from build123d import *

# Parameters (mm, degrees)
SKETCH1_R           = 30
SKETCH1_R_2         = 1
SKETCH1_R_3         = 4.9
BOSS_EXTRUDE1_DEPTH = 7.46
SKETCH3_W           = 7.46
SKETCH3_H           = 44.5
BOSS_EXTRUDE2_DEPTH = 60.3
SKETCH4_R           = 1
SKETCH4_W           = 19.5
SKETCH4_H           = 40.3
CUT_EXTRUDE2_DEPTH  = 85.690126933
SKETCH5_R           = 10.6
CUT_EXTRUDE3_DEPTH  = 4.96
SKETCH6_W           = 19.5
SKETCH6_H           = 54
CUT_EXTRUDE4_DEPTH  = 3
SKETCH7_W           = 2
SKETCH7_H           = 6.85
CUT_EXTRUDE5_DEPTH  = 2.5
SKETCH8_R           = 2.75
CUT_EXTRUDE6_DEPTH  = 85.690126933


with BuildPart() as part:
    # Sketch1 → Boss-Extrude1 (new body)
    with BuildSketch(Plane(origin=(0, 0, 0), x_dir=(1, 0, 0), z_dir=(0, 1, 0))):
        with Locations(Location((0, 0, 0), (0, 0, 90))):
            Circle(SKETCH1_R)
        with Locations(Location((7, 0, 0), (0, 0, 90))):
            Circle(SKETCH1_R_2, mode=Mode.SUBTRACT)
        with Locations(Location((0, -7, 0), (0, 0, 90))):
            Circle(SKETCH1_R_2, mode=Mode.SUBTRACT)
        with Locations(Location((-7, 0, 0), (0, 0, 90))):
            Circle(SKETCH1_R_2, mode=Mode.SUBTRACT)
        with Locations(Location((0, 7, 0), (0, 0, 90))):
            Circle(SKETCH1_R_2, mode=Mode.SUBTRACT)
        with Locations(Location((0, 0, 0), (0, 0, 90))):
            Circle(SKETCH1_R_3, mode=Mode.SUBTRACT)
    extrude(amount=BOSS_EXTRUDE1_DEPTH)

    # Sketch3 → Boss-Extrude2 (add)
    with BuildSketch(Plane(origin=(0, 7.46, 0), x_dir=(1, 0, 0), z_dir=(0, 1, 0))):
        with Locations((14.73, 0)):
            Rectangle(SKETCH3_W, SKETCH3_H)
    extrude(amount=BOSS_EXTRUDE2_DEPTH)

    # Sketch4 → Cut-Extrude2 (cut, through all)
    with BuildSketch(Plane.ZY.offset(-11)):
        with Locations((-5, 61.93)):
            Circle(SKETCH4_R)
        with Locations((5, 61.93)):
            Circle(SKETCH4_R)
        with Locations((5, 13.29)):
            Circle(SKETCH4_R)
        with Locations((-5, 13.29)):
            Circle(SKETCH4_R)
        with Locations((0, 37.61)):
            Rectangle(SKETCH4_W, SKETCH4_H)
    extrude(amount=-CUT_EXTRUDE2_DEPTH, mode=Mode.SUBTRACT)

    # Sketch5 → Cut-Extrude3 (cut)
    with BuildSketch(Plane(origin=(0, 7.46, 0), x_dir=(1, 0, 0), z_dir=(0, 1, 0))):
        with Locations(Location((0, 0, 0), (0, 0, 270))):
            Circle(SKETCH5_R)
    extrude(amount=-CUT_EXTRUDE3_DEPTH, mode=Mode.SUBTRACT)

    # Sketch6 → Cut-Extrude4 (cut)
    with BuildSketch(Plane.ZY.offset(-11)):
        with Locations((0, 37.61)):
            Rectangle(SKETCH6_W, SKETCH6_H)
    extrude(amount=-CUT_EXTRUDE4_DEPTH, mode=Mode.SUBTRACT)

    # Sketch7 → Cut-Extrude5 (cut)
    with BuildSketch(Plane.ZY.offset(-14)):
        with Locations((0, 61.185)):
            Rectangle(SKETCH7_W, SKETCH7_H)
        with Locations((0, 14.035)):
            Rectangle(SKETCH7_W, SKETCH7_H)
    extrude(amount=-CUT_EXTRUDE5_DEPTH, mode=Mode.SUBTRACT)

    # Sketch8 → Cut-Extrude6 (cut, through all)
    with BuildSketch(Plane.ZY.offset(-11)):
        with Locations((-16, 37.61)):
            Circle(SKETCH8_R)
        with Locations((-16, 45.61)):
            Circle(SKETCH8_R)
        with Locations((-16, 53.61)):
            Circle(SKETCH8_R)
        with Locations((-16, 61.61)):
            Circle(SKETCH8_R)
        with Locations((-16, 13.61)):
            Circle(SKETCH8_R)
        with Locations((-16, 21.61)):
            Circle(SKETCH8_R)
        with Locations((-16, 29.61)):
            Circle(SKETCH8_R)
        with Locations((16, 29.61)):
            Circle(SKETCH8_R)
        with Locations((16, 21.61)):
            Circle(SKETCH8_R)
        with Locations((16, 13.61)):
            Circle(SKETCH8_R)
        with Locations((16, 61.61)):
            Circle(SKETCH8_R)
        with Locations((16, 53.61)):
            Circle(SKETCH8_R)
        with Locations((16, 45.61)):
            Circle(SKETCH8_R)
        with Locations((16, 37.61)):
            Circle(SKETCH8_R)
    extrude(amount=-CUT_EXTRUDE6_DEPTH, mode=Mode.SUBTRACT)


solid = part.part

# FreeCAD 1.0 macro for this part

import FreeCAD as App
import Part
import Sketcher
Q = App.Units.Quantity

doc = App.newDocument("Part")
body = doc.addObject("PartDesign::Body", "Body")

# Sketch on XZ plane
sketch1 = doc.addObject("Sketcher::SketchObject", "Sketch")
body.addObject(sketch1)
sketch1.AttachmentSupport = (doc.XZ_Plane, [""])
sketch1.MapMode = "FlatFace"
sketch1.addGeometry(Part.Circle(App.Vector(0, 0, 0), App.Vector(0, 0, 1), 30), False)
sketch1.addGeometry(Part.Circle(App.Vector(0, 7, 0), App.Vector(0, 0, 1), 1), False)
sketch1.addGeometry(Part.Circle(App.Vector(7, 0, 0), App.Vector(0, 0, 1), 1), False)
sketch1.addGeometry(Part.Circle(App.Vector(-7, 0, 0), App.Vector(0, 0, 1), 1), False)
sketch1.addGeometry(Part.Circle(App.Vector(0, 0, 0), App.Vector(0, 0, 1), 4.9), False)
sketch1.addGeometry(Part.Circle(App.Vector(0, -7, 0), App.Vector(0, 0, 1), 1), False)
sketch1.addConstraint(Sketcher.Constraint("Coincident", 0, 3, -1, 1))
sketch1.addConstraint(Sketcher.Constraint("Coincident", 4, 3, -1, 1))
sketch1.addConstraint(Sketcher.Constraint("Equal", 1, 2))
sketch1.addConstraint(Sketcher.Constraint("Equal", 2, 3))
sketch1.addConstraint(Sketcher.Constraint("Equal", 3, 5))
sketch1.addConstraint(Sketcher.Constraint("Symmetric", 2, 3, 3, 3, -1, 1))
sketch1.addConstraint(Sketcher.Constraint("Symmetric", 1, 3, 5, 3, -1, 1))
sketch1.addConstraint(Sketcher.Constraint("PointOnObject", 1, 3, -2))
sketch1.addConstraint(Sketcher.Constraint("PointOnObject", 2, 3, -1))
sketch1.addConstraint(Sketcher.Constraint("Diameter", 0, Q("60 mm")))
sketch1.addConstraint(Sketcher.Constraint("Diameter", 1, Q("2 mm")))
sketch1.addConstraint(Sketcher.Constraint("Diameter", 4, Q("9.8 mm")))
sketch1.addConstraint(Sketcher.Constraint("DistanceY", -1, 1, 1, 3, Q("7 mm")))
sketch1.addConstraint(Sketcher.Constraint("DistanceX", -1, 1, 2, 3, Q("7 mm")))
pad1 = doc.addObject("PartDesign::Pad", "Pad")
body.addObject(pad1)
pad1.Profile = sketch1
pad1.Length = 7.46
pad1.Reversed = True

# Sketch on XZ plane
sketch2 = doc.addObject("Sketcher::SketchObject", "Sketch001")
body.addObject(sketch2)
sketch2.AttachmentSupport = (doc.XZ_Plane, [""])
sketch2.MapMode = "FlatFace"
sketch2.AttachmentOffset = App.Placement(App.Vector(0, 0, -7.46), App.Rotation())
sketch2.addGeometry(Part.LineSegment(App.Vector(11, -22, 0), App.Vector(11, 22, 0)), False)
sketch2.addGeometry(Part.LineSegment(App.Vector(11, 22, 0), App.Vector(18, 22, 0)), False)
sketch2.addGeometry(Part.LineSegment(App.Vector(18, 22, 0), App.Vector(18, -22, 0)), False)
sketch2.addGeometry(Part.LineSegment(App.Vector(18, -22, 0), App.Vector(11, -22, 0)), False)
sketch2.addConstraint(Sketcher.Constraint("Coincident", 0, 2, 1, 1))
sketch2.addConstraint(Sketcher.Constraint("Coincident", 1, 2, 2, 1))
sketch2.addConstraint(Sketcher.Constraint("Coincident", 2, 2, 3, 1))
sketch2.addConstraint(Sketcher.Constraint("Coincident", 3, 2, 0, 1))
sketch2.addConstraint(Sketcher.Constraint("Vertical", 0))
sketch2.addConstraint(Sketcher.Constraint("Horizontal", 1))
sketch2.addConstraint(Sketcher.Constraint("Vertical", 2))
sketch2.addConstraint(Sketcher.Constraint("Horizontal", 3))
sketch2.addConstraint(Sketcher.Constraint("DistanceY", 0, 1, 0, 2, Q("44.5 mm")))
sketch2.addConstraint(Sketcher.Constraint("DistanceX", -1, 1, 0, 2, Q("11 mm")))
sketch2.addConstraint(Sketcher.Constraint("DistanceX", 1, 1, 1, 2, Q("7.46 mm")))
sketch2.addConstraint(Sketcher.Constraint("DistanceY", -1, 1, 0, 2, Q("22.25 mm")))
pad2 = doc.addObject("PartDesign::Pad", "Pad001")
body.addObject(pad2)
pad2.Profile = sketch2
pad2.Length = 60.3
pad2.Reversed = True

# Sketch on YZ plane
sketch3 = doc.addObject("Sketcher::SketchObject", "Sketch002")
body.addObject(sketch3)
sketch3.AttachmentSupport = (doc.YZ_Plane, [""])
sketch3.MapMode = "FlatFace"
sketch3.AttachmentOffset = App.Placement(App.Vector(0, 0, 11), App.Rotation())
sketch3.addGeometry(Part.Circle(App.Vector(61.9, -5, 0), App.Vector(0, 0, 1), 1), False)
sketch3.addGeometry(Part.Circle(App.Vector(61.9, 5, 0), App.Vector(0, 0, 1), 1), False)
sketch3.addGeometry(Part.Circle(App.Vector(13.3, 5, 0), App.Vector(0, 0, 1), 1), False)
sketch3.addGeometry(Part.Circle(App.Vector(13.3, -5, 0), App.Vector(0, 0, 1), 1), False)
sketch3.addGeometry(Part.LineSegment(App.Vector(57.8, -9.8, 0), App.Vector(17.5, -9.8, 0)), False)
sketch3.addGeometry(Part.LineSegment(App.Vector(17.5, -9.8, 0), App.Vector(17.5, 9.8, 0)), False)
sketch3.addGeometry(Part.LineSegment(App.Vector(17.5, 9.8, 0), App.Vector(57.8, 9.8, 0)), False)
sketch3.addGeometry(Part.LineSegment(App.Vector(57.8, 9.8, 0), App.Vector(57.8, -9.8, 0)), False)
sketch3.addConstraint(Sketcher.Constraint("Coincident", 4, 2, 5, 1))
sketch3.addConstraint(Sketcher.Constraint("Coincident", 5, 2, 6, 1))
sketch3.addConstraint(Sketcher.Constraint("Coincident", 6, 2, 7, 1))
sketch3.addConstraint(Sketcher.Constraint("Coincident", 7, 2, 4, 1))
sketch3.addConstraint(Sketcher.Constraint("Horizontal", 4))
sketch3.addConstraint(Sketcher.Constraint("Vertical", 5))
sketch3.addConstraint(Sketcher.Constraint("Horizontal", 6))
sketch3.addConstraint(Sketcher.Constraint("Vertical", 7))
sketch3.addConstraint(Sketcher.Constraint("Equal", 0, 1))
sketch3.addConstraint(Sketcher.Constraint("Equal", 1, 2))
sketch3.addConstraint(Sketcher.Constraint("Equal", 2, 3))
sketch3.addConstraint(Sketcher.Constraint("Symmetric", 0, 3, 1, 3, -1))
sketch3.addConstraint(Sketcher.Constraint("Symmetric", 2, 3, 3, 3, -1))
sketch3.addConstraint(Sketcher.Constraint("Horizontal", 1, 3, 2, 3))
sketch3.addConstraint(Sketcher.Constraint("Diameter", 0, Q("2 mm")))
sketch3.addConstraint(Sketcher.Constraint("DistanceX", 4, 2, 4, 1, Q("40.3 mm")))
sketch3.addConstraint(Sketcher.Constraint("DistanceY", 5, 1, 5, 2, Q("19.5 mm")))
sketch3.addConstraint(Sketcher.Constraint("DistanceY", 0, 3, -1, 1, Q("5 mm")))
sketch3.addConstraint(Sketcher.Constraint("DistanceX", -1, 1, 0, 3, Q("61.93 mm")))
sketch3.addConstraint(Sketcher.Constraint("DistanceX", -1, 1, 2, 3, Q("13.29 mm")))
sketch3.addConstraint(Sketcher.Constraint("DistanceX", -1, 1, 4, 2, Q("17.46 mm")))
sketch3.addConstraint(Sketcher.Constraint("DistanceY", 4, 2, -1, 1, Q("9.75 mm")))
pocket1 = doc.addObject("PartDesign::Pocket", "Pocket")
body.addObject(pocket1)
pocket1.Profile = sketch3
pocket1.Type = "ThroughAll"
pocket1.Reversed = True

# Sketch on XZ plane
sketch4 = doc.addObject("Sketcher::SketchObject", "Sketch003")
body.addObject(sketch4)
sketch4.AttachmentSupport = (doc.XZ_Plane, [""])
sketch4.MapMode = "FlatFace"
sketch4.AttachmentOffset = App.Placement(App.Vector(0, 0, -7.46), App.Rotation())
sketch4.addGeometry(Part.Circle(App.Vector(0, 0, 0), App.Vector(0, 0, 1), 11), False)
sketch4.addConstraint(Sketcher.Constraint("Coincident", 0, 3, -1, 1))
sketch4.addConstraint(Sketcher.Constraint("Diameter", 0, Q("21.2 mm")))
pocket2 = doc.addObject("PartDesign::Pocket", "Pocket001")
body.addObject(pocket2)
pocket2.Profile = sketch4
pocket2.Length = 4.96
pocket2.Reversed = True

# Sketch on YZ plane
sketch5 = doc.addObject("Sketcher::SketchObject", "Sketch004")
body.addObject(sketch5)
sketch5.AttachmentSupport = (doc.YZ_Plane, [""])
sketch5.MapMode = "FlatFace"
sketch5.AttachmentOffset = App.Placement(App.Vector(0, 0, 11), App.Rotation())
sketch5.addGeometry(Part.LineSegment(App.Vector(65, -10, 0), App.Vector(11, -10, 0)), False)
sketch5.addGeometry(Part.LineSegment(App.Vector(11, -10, 0), App.Vector(11, 10, 0)), False)
sketch5.addGeometry(Part.LineSegment(App.Vector(11, 10, 0), App.Vector(65, 10, 0)), False)
sketch5.addGeometry(Part.LineSegment(App.Vector(65, 10, 0), App.Vector(65, -10, 0)), False)
sketch5.addConstraint(Sketcher.Constraint("Coincident", 0, 2, 1, 1))
sketch5.addConstraint(Sketcher.Constraint("Coincident", 1, 2, 2, 1))
sketch5.addConstraint(Sketcher.Constraint("Coincident", 2, 2, 3, 1))
sketch5.addConstraint(Sketcher.Constraint("Coincident", 3, 2, 0, 1))
sketch5.addConstraint(Sketcher.Constraint("Horizontal", 0))
sketch5.addConstraint(Sketcher.Constraint("Vertical", 1))
sketch5.addConstraint(Sketcher.Constraint("Horizontal", 2))
sketch5.addConstraint(Sketcher.Constraint("Vertical", 3))
sketch5.addConstraint(Sketcher.Constraint("DistanceX", 0, 2, 0, 1, Q("54 mm")))
sketch5.addConstraint(Sketcher.Constraint("DistanceY", 1, 1, 1, 2, Q("19.5 mm")))
sketch5.addConstraint(Sketcher.Constraint("DistanceX", -1, 1, 0, 2, Q("10.61 mm")))
sketch5.addConstraint(Sketcher.Constraint("DistanceY", 0, 2, -1, 1, Q("9.75 mm")))
pocket3 = doc.addObject("PartDesign::Pocket", "Pocket002")
body.addObject(pocket3)
pocket3.Profile = sketch5
pocket3.Length = 3
pocket3.Reversed = True

# Sketch on YZ plane
sketch6 = doc.addObject("Sketcher::SketchObject", "Sketch005")
body.addObject(sketch6)
sketch6.AttachmentSupport = (doc.YZ_Plane, [""])
sketch6.MapMode = "FlatFace"
sketch6.AttachmentOffset = App.Placement(App.Vector(0, 0, 14), App.Rotation())
sketch6.addGeometry(Part.LineSegment(App.Vector(64.6, -1, 0), App.Vector(57.8, -1, 0)), False)
sketch6.addGeometry(Part.LineSegment(App.Vector(57.8, -1, 0), App.Vector(57.8, 1, 0)), False)
sketch6.addGeometry(Part.LineSegment(App.Vector(57.8, 1, 0), App.Vector(64.6, 1, 0)), False)
sketch6.addGeometry(Part.LineSegment(App.Vector(64.6, 1, 0), App.Vector(64.6, -1, 0)), False)
sketch6.addGeometry(Part.LineSegment(App.Vector(17.5, -1, 0), App.Vector(10.6, -1, 0)), False)
sketch6.addGeometry(Part.LineSegment(App.Vector(10.6, -1, 0), App.Vector(10.6, 1, 0)), False)
sketch6.addGeometry(Part.LineSegment(App.Vector(10.6, 1, 0), App.Vector(17.5, 1, 0)), False)
sketch6.addGeometry(Part.LineSegment(App.Vector(17.5, 1, 0), App.Vector(17.5, -1, 0)), False)
sketch6.addConstraint(Sketcher.Constraint("Coincident", 0, 2, 1, 1))
sketch6.addConstraint(Sketcher.Constraint("Coincident", 1, 2, 2, 1))
sketch6.addConstraint(Sketcher.Constraint("Coincident", 2, 2, 3, 1))
sketch6.addConstraint(Sketcher.Constraint("Coincident", 3, 2, 0, 1))
sketch6.addConstraint(Sketcher.Constraint("Coincident", 4, 2, 5, 1))
sketch6.addConstraint(Sketcher.Constraint("Coincident", 5, 2, 6, 1))
sketch6.addConstraint(Sketcher.Constraint("Coincident", 6, 2, 7, 1))
sketch6.addConstraint(Sketcher.Constraint("Coincident", 7, 2, 4, 1))
sketch6.addConstraint(Sketcher.Constraint("Horizontal", 0))
sketch6.addConstraint(Sketcher.Constraint("Vertical", 1))
sketch6.addConstraint(Sketcher.Constraint("Horizontal", 2))
sketch6.addConstraint(Sketcher.Constraint("Vertical", 3))
sketch6.addConstraint(Sketcher.Constraint("Horizontal", 4))
sketch6.addConstraint(Sketcher.Constraint("Vertical", 5))
sketch6.addConstraint(Sketcher.Constraint("Horizontal", 6))
sketch6.addConstraint(Sketcher.Constraint("Vertical", 7))
sketch6.addConstraint(Sketcher.Constraint("Horizontal", 3, 2, 4, 2))
sketch6.addConstraint(Sketcher.Constraint("Horizontal", 2, 2, 5, 2))
sketch6.addConstraint(Sketcher.Constraint("Equal", 2, 4))
sketch6.addConstraint(Sketcher.Constraint("DistanceY", 1, 1, 1, 2, Q("2 mm")))
sketch6.addConstraint(Sketcher.Constraint("DistanceY", 0, 2, -1, 1, Q("1 mm")))
sketch6.addConstraint(Sketcher.Constraint("DistanceX", 4, 2, 3, 2, Q("54 mm")))
sketch6.addConstraint(Sketcher.Constraint("DistanceX", 0, 2, 0, 1, Q("6.85 mm")))
sketch6.addConstraint(Sketcher.Constraint("DistanceX", -1, 1, 0, 2, Q("57.76 mm")))
pocket4 = doc.addObject("PartDesign::Pocket", "Pocket003")
body.addObject(pocket4)
pocket4.Profile = sketch6
pocket4.Length = 2.5
pocket4.Reversed = True

# Sketch on YZ plane
sketch7 = doc.addObject("Sketcher::SketchObject", "Sketch006")
body.addObject(sketch7)
sketch7.AttachmentSupport = (doc.YZ_Plane, [""])
sketch7.MapMode = "FlatFace"
sketch7.AttachmentOffset = App.Placement(App.Vector(0, 0, 11), App.Rotation())
sketch7.addGeometry(Part.Circle(App.Vector(37.6, -16, 0), App.Vector(0, 0, 1), 2.8), False)
sketch7.addGeometry(Part.Circle(App.Vector(45.6, -16, 0), App.Vector(0, 0, 1), 2.8), False)
sketch7.addGeometry(Part.Circle(App.Vector(53.6, -16, 0), App.Vector(0, 0, 1), 2.8), False)
sketch7.addGeometry(Part.Circle(App.Vector(61.6, -16, 0), App.Vector(0, 0, 1), 2.8), False)
sketch7.addGeometry(Part.Circle(App.Vector(13.6, -16, 0), App.Vector(0, 0, 1), 2.8), False)
sketch7.addGeometry(Part.Circle(App.Vector(21.6, -16, 0), App.Vector(0, 0, 1), 2.8), False)
sketch7.addGeometry(Part.Circle(App.Vector(29.6, -16, 0), App.Vector(0, 0, 1), 2.8), False)
sketch7.addGeometry(Part.Circle(App.Vector(29.6, 16, 0), App.Vector(0, 0, 1), 2.8), False)
sketch7.addGeometry(Part.Circle(App.Vector(21.6, 16, 0), App.Vector(0, 0, 1), 2.8), False)
sketch7.addGeometry(Part.Circle(App.Vector(13.6, 16, 0), App.Vector(0, 0, 1), 2.8), False)
sketch7.addGeometry(Part.Circle(App.Vector(61.6, 16, 0), App.Vector(0, 0, 1), 2.8), False)
sketch7.addGeometry(Part.Circle(App.Vector(53.6, 16, 0), App.Vector(0, 0, 1), 2.8), False)
sketch7.addGeometry(Part.Circle(App.Vector(45.6, 16, 0), App.Vector(0, 0, 1), 2.8), False)
sketch7.addGeometry(Part.Circle(App.Vector(37.6, 16, 0), App.Vector(0, 0, 1), 2.8), False)
sketch7.addConstraint(Sketcher.Constraint("Equal", 0, 1))
sketch7.addConstraint(Sketcher.Constraint("Equal", 1, 2))
sketch7.addConstraint(Sketcher.Constraint("Equal", 2, 3))
sketch7.addConstraint(Sketcher.Constraint("Equal", 3, 4))
sketch7.addConstraint(Sketcher.Constraint("Equal", 4, 5))
sketch7.addConstraint(Sketcher.Constraint("Equal", 5, 6))
sketch7.addConstraint(Sketcher.Constraint("Equal", 6, 7))
sketch7.addConstraint(Sketcher.Constraint("Equal", 7, 8))
sketch7.addConstraint(Sketcher.Constraint("Equal", 8, 9))
sketch7.addConstraint(Sketcher.Constraint("Equal", 9, 10))
sketch7.addConstraint(Sketcher.Constraint("Equal", 10, 11))
sketch7.addConstraint(Sketcher.Constraint("Equal", 11, 12))
sketch7.addConstraint(Sketcher.Constraint("Equal", 12, 13))
sketch7.addConstraint(Sketcher.Constraint("Symmetric", 6, 3, 7, 3, -1))
sketch7.addConstraint(Sketcher.Constraint("Symmetric", 5, 3, 8, 3, -1))
sketch7.addConstraint(Sketcher.Constraint("Symmetric", 4, 3, 9, 3, -1))
sketch7.addConstraint(Sketcher.Constraint("Symmetric", 3, 3, 10, 3, -1))
sketch7.addConstraint(Sketcher.Constraint("Symmetric", 2, 3, 11, 3, -1))
sketch7.addConstraint(Sketcher.Constraint("Symmetric", 1, 3, 12, 3, -1))
sketch7.addConstraint(Sketcher.Constraint("Symmetric", 0, 3, 13, 3, -1))
sketch7.addConstraint(Sketcher.Constraint("Horizontal", 0, 3, 1, 3))
sketch7.addConstraint(Sketcher.Constraint("Horizontal", 1, 3, 2, 3))
sketch7.addConstraint(Sketcher.Constraint("Horizontal", 2, 3, 3, 3))
sketch7.addConstraint(Sketcher.Constraint("Horizontal", 3, 3, 4, 3))
sketch7.addConstraint(Sketcher.Constraint("Horizontal", 4, 3, 5, 3))
sketch7.addConstraint(Sketcher.Constraint("Horizontal", 5, 3, 6, 3))
sketch7.addConstraint(Sketcher.Constraint("Diameter", 0, Q("5.5 mm")))
sketch7.addConstraint(Sketcher.Constraint("DistanceY", 0, 3, -1, 1, Q("16 mm")))
sketch7.addConstraint(Sketcher.Constraint("DistanceX", 0, 3, 1, 3, Q("8 mm")))
sketch7.addConstraint(Sketcher.Constraint("DistanceX", 1, 3, 2, 3, Q("8 mm")))
sketch7.addConstraint(Sketcher.Constraint("DistanceX", 2, 3, 3, 3, Q("8 mm")))
sketch7.addConstraint(Sketcher.Constraint("DistanceX", 4, 3, 0, 3, Q("24 mm")))
sketch7.addConstraint(Sketcher.Constraint("DistanceX", 4, 3, 5, 3, Q("8 mm")))
sketch7.addConstraint(Sketcher.Constraint("DistanceX", 6, 3, 0, 3, Q("8 mm")))
sketch7.addConstraint(Sketcher.Constraint("DistanceX", -1, 1, 0, 3, Q("37.61 mm")))
pocket5 = doc.addObject("PartDesign::Pocket", "Pocket004")
body.addObject(pocket5)
pocket5.Profile = sketch7
pocket5.Type = "ThroughAll"
pocket5.Reversed = True

doc.recompute()
